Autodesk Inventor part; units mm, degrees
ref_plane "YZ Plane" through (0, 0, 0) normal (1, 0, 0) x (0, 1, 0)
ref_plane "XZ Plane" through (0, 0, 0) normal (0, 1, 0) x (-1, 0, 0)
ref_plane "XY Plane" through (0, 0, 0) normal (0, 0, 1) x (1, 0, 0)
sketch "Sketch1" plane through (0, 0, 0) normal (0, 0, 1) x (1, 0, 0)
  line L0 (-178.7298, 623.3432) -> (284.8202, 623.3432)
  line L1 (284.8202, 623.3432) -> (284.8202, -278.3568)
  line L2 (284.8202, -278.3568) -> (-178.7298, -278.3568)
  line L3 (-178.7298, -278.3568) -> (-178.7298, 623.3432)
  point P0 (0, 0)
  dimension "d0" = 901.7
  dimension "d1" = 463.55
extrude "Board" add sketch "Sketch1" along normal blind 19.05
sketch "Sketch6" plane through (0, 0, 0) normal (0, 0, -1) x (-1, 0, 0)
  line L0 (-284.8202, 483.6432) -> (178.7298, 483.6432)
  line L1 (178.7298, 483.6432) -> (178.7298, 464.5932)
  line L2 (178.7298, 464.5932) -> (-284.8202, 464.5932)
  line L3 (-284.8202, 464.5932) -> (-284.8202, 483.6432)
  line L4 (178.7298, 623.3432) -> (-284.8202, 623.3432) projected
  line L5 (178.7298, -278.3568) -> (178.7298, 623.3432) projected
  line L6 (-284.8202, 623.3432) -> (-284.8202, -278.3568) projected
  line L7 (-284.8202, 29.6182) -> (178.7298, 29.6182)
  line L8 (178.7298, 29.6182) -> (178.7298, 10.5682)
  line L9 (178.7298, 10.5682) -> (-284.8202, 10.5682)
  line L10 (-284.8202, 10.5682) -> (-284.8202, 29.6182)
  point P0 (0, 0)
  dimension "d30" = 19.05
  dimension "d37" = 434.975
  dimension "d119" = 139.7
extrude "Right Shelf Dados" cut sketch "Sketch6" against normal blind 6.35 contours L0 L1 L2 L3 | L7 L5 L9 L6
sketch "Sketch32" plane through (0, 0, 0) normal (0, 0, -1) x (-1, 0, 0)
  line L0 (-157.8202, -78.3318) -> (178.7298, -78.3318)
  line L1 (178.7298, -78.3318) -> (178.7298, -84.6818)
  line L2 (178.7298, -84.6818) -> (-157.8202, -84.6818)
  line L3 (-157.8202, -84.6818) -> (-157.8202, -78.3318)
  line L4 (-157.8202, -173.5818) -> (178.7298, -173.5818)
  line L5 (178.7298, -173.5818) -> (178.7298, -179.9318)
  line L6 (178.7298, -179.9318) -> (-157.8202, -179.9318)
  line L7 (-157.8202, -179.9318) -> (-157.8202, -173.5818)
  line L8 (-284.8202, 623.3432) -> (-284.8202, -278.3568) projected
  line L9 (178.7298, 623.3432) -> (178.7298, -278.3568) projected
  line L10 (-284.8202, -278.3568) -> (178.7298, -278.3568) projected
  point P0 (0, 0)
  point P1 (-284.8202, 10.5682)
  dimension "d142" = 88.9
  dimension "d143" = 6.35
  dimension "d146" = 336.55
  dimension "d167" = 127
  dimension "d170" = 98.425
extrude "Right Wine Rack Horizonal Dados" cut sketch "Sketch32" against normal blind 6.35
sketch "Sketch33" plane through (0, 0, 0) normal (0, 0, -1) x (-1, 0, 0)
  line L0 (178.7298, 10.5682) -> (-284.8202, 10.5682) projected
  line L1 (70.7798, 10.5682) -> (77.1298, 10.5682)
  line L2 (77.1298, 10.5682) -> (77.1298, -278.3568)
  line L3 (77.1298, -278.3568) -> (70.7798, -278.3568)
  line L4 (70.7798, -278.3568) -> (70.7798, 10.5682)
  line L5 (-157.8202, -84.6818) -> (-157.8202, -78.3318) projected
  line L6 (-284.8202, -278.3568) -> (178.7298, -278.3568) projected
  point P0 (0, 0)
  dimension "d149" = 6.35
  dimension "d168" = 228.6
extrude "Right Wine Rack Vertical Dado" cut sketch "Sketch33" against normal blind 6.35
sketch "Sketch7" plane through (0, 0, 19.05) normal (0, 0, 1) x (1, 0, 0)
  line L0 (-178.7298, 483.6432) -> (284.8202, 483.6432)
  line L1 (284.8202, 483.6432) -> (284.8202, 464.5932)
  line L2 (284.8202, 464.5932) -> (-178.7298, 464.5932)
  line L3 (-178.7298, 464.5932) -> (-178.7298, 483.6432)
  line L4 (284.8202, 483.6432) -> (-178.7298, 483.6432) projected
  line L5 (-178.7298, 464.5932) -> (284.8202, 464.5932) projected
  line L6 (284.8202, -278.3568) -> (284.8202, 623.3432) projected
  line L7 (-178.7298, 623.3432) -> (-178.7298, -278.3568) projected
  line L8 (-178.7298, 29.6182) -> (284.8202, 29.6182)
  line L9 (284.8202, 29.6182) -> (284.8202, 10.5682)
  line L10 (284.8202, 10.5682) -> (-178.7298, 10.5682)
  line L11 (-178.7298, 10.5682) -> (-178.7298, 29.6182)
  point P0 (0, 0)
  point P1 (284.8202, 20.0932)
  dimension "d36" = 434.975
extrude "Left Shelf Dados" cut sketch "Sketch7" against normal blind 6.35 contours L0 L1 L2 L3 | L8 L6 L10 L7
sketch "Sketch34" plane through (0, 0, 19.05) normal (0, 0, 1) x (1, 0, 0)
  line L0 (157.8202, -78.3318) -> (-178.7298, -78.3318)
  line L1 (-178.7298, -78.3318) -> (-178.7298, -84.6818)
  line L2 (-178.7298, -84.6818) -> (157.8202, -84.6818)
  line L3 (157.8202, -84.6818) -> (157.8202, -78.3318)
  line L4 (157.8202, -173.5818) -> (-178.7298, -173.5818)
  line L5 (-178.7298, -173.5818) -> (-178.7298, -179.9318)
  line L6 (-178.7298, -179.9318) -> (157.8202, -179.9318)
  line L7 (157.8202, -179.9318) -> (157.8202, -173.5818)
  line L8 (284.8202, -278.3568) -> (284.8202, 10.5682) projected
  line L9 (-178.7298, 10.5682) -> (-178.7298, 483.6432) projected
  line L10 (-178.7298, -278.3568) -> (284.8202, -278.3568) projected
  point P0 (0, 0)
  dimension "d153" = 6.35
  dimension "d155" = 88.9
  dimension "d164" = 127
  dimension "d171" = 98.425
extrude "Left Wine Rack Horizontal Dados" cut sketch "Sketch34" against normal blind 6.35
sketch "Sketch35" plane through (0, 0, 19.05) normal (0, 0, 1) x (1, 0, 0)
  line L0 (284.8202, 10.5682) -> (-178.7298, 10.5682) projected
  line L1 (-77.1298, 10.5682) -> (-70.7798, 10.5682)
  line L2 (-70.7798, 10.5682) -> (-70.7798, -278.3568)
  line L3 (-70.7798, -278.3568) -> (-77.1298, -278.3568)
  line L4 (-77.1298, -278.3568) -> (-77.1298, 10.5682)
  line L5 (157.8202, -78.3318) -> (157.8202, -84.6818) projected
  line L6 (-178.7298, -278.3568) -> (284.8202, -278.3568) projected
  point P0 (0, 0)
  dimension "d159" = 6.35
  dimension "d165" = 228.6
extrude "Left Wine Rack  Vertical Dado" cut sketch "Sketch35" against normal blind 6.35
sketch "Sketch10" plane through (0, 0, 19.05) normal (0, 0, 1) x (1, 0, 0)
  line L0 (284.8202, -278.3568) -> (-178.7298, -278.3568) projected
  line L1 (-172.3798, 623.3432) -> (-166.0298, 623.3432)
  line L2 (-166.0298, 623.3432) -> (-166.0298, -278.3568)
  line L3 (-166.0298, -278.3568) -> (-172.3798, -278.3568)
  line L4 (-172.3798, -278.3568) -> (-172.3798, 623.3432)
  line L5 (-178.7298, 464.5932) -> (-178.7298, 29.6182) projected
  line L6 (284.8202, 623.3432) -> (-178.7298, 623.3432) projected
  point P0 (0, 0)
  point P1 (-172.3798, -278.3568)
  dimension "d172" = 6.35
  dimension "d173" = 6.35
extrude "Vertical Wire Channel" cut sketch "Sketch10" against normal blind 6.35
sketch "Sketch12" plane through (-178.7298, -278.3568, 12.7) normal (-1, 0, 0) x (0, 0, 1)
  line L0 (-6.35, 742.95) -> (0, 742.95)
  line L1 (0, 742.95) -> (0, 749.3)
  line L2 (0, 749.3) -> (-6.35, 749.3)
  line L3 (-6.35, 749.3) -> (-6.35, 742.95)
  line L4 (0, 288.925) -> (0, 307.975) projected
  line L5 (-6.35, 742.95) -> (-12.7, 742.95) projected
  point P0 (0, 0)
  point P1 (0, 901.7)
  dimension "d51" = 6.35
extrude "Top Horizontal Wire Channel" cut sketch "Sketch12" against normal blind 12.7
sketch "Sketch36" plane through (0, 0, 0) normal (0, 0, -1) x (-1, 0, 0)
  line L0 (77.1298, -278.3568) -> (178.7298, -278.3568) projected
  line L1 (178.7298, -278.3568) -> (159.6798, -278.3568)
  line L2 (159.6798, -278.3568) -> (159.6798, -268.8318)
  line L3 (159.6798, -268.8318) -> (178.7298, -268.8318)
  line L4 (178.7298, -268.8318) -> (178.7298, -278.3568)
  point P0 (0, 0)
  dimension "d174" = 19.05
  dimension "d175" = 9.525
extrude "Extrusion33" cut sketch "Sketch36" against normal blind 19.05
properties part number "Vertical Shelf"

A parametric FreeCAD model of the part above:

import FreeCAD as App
import Part
import Sketcher
Q = App.Units.Quantity


def add_polygon(sketch, points):
    """Adds a closed chain of lines whose ends are joined by coincident constraints."""
    first, n = sketch.GeometryCount, len(points)
    for a, b in zip(points, points[1:] + points[:1]):
        sketch.addGeometry(Part.LineSegment(App.Vector(*a, 0), App.Vector(*b, 0)), False)
    for i in range(n):
        sketch.addConstraint(Sketcher.Constraint("Coincident", first + i, 2, first + (i + 1) % n, 1))

doc = App.newDocument("Part")
params = doc.addObject("Spreadsheet::Sheet", "Params")
for row, (alias, value) in enumerate([
    ("sketch1_height", "35.5 in"),
    ("sketch1_width", "18.25 in"),
    ("pad1_length", "0.75 in"),
    ("sketch2_height", "0.75 in"),
    ("sketch2_width", "18.25 in"),
    ("pocket1_length", "0.25 in"),
    ("sketch3_width", "13.25 in"),
    ("sketch3_height", "0.25 in"),
    ("pocket2_length", "0.25 in"),
    ("sketch4_width", "0.25 in"),
    ("sketch4_height", "11.375 in"),
    ("pocket3_length", "0.25 in"),
    ("sketch5_width", "18.25 in"),
    ("sketch5_height", "0.75 in"),
    ("pocket4_length", "0.25 in"),
    ("sketch6_height", "0.25 in"),
    ("sketch6_width", "13.25 in"),
    ("pocket5_length", "0.25 in"),
    ("sketch7_width", "0.25 in"),
    ("sketch7_height", "11.375 in"),
    ("pocket6_length", "0.25 in"),
    ("sketch8_width", "0.25 in"),
    ("sketch8_height", "35.5 in"),
    ("pocket7_length", "0.25 in"),
    ("sketch9_width", "0.25 in"),
    ("pocket8_length", "0.5 in"),
    ("sketch10_width", "0.75 in"),
    ("sketch10_height", "0.375 in"),
    ("pocket9_length", "0.75 in"),
], start=1):
    params.set(f"A{row}", alias)
    params.set(f"B{row}", "=" + value)
    params.setAlias(f"B{row}", alias)

body = doc.addObject("PartDesign::Body", "Body")

# Sketch on XY plane
sketch1 = doc.addObject("Sketcher::SketchObject", "Sketch")
body.addObject(sketch1)
sketch1.AttachmentSupport = (doc.XY_Plane, [""])
sketch1.MapMode = "FlatFace"
add_polygon(sketch1, [(285, 623), (-179, 623), (-179, -278), (285, -278)])  # lines 0-3
sketch1.addConstraint(Sketcher.Constraint("Horizontal", 0))
sketch1.addConstraint(Sketcher.Constraint("Vertical", 1))
sketch1.addConstraint(Sketcher.Constraint("Horizontal", 2))
sketch1.addConstraint(Sketcher.Constraint("Vertical", 3))
sketch1.addConstraint(Sketcher.Constraint("DistanceY", 1, 2, 1, 1, Q("35.5 in")))
sketch1.addConstraint(Sketcher.Constraint("DistanceX", 0, 2, 0, 1, Q("18.25 in")))
sketch1.addConstraint(Sketcher.Constraint("DistanceX", 0, 2, -1, 1, Q("7.0366 in")))
sketch1.addConstraint(Sketcher.Constraint("DistanceY", -1, 1, 0, 2, Q("623.3432 mm")))
sketch1.setExpression("Constraints[8]", "Params.sketch1_height")
sketch1.setExpression("Constraints[9]", "Params.sketch1_width")
pad1 = doc.addObject("PartDesign::Pad", "Pad")
body.addObject(pad1)
pad1.Profile = sketch1
pad1.setExpression("Length", "Params.pad1_length")

# Sketch on XY plane
sketch2 = doc.addObject("Sketcher::SketchObject", "Sketch001")
body.addObject(sketch2)
sketch2.AttachmentSupport = (doc.XY_Plane, [""])
sketch2.MapMode = "FlatFace"
add_polygon(sketch2, [(-179, 484), (285, 484), (285, 465), (-179, 465)])  # lines 0-3
add_polygon(sketch2, [(-179, 30), (285, 30), (285, 11), (-179, 11)])  # lines 4-7
sketch2.addConstraint(Sketcher.Constraint("Horizontal", 0))
sketch2.addConstraint(Sketcher.Constraint("Vertical", 1))
sketch2.addConstraint(Sketcher.Constraint("Horizontal", 2))
sketch2.addConstraint(Sketcher.Constraint("Vertical", 3))
sketch2.addConstraint(Sketcher.Constraint("Horizontal", 4))
sketch2.addConstraint(Sketcher.Constraint("Vertical", 5))
sketch2.addConstraint(Sketcher.Constraint("Horizontal", 6))
sketch2.addConstraint(Sketcher.Constraint("Vertical", 7))
sketch2.addConstraint(Sketcher.Constraint("Vertical", 1, 2, 4, 2))
sketch2.addConstraint(Sketcher.Constraint("Vertical", 3, 2, 6, 2))
sketch2.addConstraint(Sketcher.Constraint("Equal", 3, 5))
sketch2.addConstraint(Sketcher.Constraint("DistanceY", 1, 2, 1, 1, Q("0.75 in")))
sketch2.addConstraint(Sketcher.Constraint("DistanceY", 4, 2, 1, 2, Q("17.125 in")))
sketch2.addConstraint(Sketcher.Constraint("DistanceX", 0, 1, 0, 2, Q("18.25 in")))
sketch2.addConstraint(Sketcher.Constraint("DistanceX", -1, 1, 0, 2, Q("11.2134 in")))
sketch2.addConstraint(Sketcher.Constraint("DistanceY", -1, 1, 0, 2, Q("483.6432 mm")))
sketch2.setExpression("Constraints[19]", "Params.sketch2_height")
sketch2.setExpression("Constraints[21]", "Params.sketch2_width")
pocket1 = doc.addObject("PartDesign::Pocket", "Pocket")
body.addObject(pocket1)
pocket1.Profile = sketch2
pocket1.setExpression("Length", "Params.pocket1_length")
pocket1.Reversed = True

# Sketch on XY plane
sketch3 = doc.addObject("Sketcher::SketchObject", "Sketch002")
body.addObject(sketch3)
sketch3.AttachmentSupport = (doc.XY_Plane, [""])
sketch3.MapMode = "FlatFace"
add_polygon(sketch3, [(-179, -180), (-179, -174), (158, -174), (158, -180)])  # lines 0-3
add_polygon(sketch3, [(-179, -78), (158, -78), (158, -85), (-179, -85)])  # lines 4-7
sketch3.addConstraint(Sketcher.Constraint("Vertical", 0))
sketch3.addConstraint(Sketcher.Constraint("Horizontal", 1))
sketch3.addConstraint(Sketcher.Constraint("Vertical", 2))
sketch3.addConstraint(Sketcher.Constraint("Horizontal", 3))
sketch3.addConstraint(Sketcher.Constraint("Horizontal", 4))
sketch3.addConstraint(Sketcher.Constraint("Vertical", 5))
sketch3.addConstraint(Sketcher.Constraint("Horizontal", 6))
sketch3.addConstraint(Sketcher.Constraint("Vertical", 7))
sketch3.addConstraint(Sketcher.Constraint("Vertical", 2, 2, 4, 2))
sketch3.addConstraint(Sketcher.Constraint("Vertical", 3, 2, 6, 2))
sketch3.addConstraint(Sketcher.Constraint("Equal", 2, 5))
sketch3.addConstraint(Sketcher.Constraint("DistanceX", 1, 1, 1, 2, Q("13.25 in")))
sketch3.addConstraint(Sketcher.Constraint("DistanceY", 0, 1, 0, 2, Q("0.25 in")))
sketch3.addConstraint(Sketcher.Constraint("DistanceY", 1, 2, 5, 2, Q("3.5 in")))
sketch3.addConstraint(Sketcher.Constraint("DistanceX", 0, 2, -1, 1, Q("7.0366 in")))
sketch3.addConstraint(Sketcher.Constraint("DistanceY", 0, 2, -1, 1, Q("173.5818 mm")))
sketch3.setExpression("Constraints[19]", "Params.sketch3_width")
sketch3.setExpression("Constraints[20]", "Params.sketch3_height")
pocket2 = doc.addObject("PartDesign::Pocket", "Pocket001")
body.addObject(pocket2)
pocket2.Profile = sketch3
pocket2.setExpression("Length", "Params.pocket2_length")
pocket2.Reversed = True

# Sketch on XY plane
sketch4 = doc.addObject("Sketcher::SketchObject", "Sketch003")
body.addObject(sketch4)
sketch4.AttachmentSupport = (doc.XY_Plane, [""])
sketch4.MapMode = "FlatFace"
add_polygon(sketch4, [(-77, -278), (-77, 11), (-71, 11), (-71, -278)])  # lines 0-3
sketch4.addConstraint(Sketcher.Constraint("Vertical", 0))
sketch4.addConstraint(Sketcher.Constraint("Horizontal", 1))
sketch4.addConstraint(Sketcher.Constraint("Vertical", 2))
sketch4.addConstraint(Sketcher.Constraint("Horizontal", 3))
sketch4.addConstraint(Sketcher.Constraint("DistanceX", 1, 1, 1, 2, Q("0.25 in")))
sketch4.addConstraint(Sketcher.Constraint("DistanceY", 0, 1, 0, 2, Q("11.375 in")))
sketch4.addConstraint(Sketcher.Constraint("DistanceX", 0, 2, -1, 1, Q("3.0366 in")))
sketch4.addConstraint(Sketcher.Constraint("DistanceY", -1, 1, 0, 2, Q("10.5682 mm")))
sketch4.setExpression("Constraints[8]", "Params.sketch4_width")
sketch4.setExpression("Constraints[9]", "Params.sketch4_height")
pocket3 = doc.addObject("PartDesign::Pocket", "Pocket002")
body.addObject(pocket3)
pocket3.Profile = sketch4
pocket3.setExpression("Length", "Params.pocket3_length")
pocket3.Reversed = True

# Sketch on XY plane
sketch5 = doc.addObject("Sketcher::SketchObject", "Sketch004")
body.addObject(sketch5)
sketch5.AttachmentSupport = (doc.XY_Plane, [""])
sketch5.MapMode = "FlatFace"
sketch5.AttachmentOffset = App.Placement(App.Vector(0, 0, 0.75 * 25.4), App.Rotation())
add_polygon(sketch5, [(285, 484), (-179, 484), (-179, 465), (285, 465)])  # lines 0-3
add_polygon(sketch5, [(285, 30), (-179, 30), (-179, 11), (285, 11)])  # lines 4-7
sketch5.addConstraint(Sketcher.Constraint("Horizontal", 0))
sketch5.addConstraint(Sketcher.Constraint("Vertical", 1))
sketch5.addConstraint(Sketcher.Constraint("Horizontal", 2))
sketch5.addConstraint(Sketcher.Constraint("Vertical", 3))
sketch5.addConstraint(Sketcher.Constraint("Horizontal", 4))
sketch5.addConstraint(Sketcher.Constraint("Vertical", 5))
sketch5.addConstraint(Sketcher.Constraint("Horizontal", 6))
sketch5.addConstraint(Sketcher.Constraint("Vertical", 7))
sketch5.addConstraint(Sketcher.Constraint("Vertical", 1, 2, 4, 2))
sketch5.addConstraint(Sketcher.Constraint("Vertical", 3, 2, 6, 2))
sketch5.addConstraint(Sketcher.Constraint("Equal", 3, 5))
sketch5.addConstraint(Sketcher.Constraint("DistanceY", 4, 2, 1, 2, Q("17.125 in")))
sketch5.addConstraint(Sketcher.Constraint("DistanceX", 0, 2, 0, 1, Q("18.25 in")))
sketch5.addConstraint(Sketcher.Constraint("DistanceY", 1, 2, 1, 1, Q("0.75 in")))
sketch5.addConstraint(Sketcher.Constraint("DistanceX", 0, 2, -1, 1, Q("7.0366 in")))
sketch5.addConstraint(Sketcher.Constraint("DistanceY", -1, 1, 0, 2, Q("483.6432 mm")))
sketch5.setExpression("Constraints[20]", "Params.sketch5_width")
sketch5.setExpression("Constraints[21]", "Params.sketch5_height")
pocket4 = doc.addObject("PartDesign::Pocket", "Pocket003")
body.addObject(pocket4)
pocket4.Profile = sketch5
pocket4.setExpression("Length", "Params.pocket4_length")

# Sketch on XY plane
sketch6 = doc.addObject("Sketcher::SketchObject", "Sketch005")
body.addObject(sketch6)
sketch6.AttachmentSupport = (doc.XY_Plane, [""])
sketch6.MapMode = "FlatFace"
sketch6.AttachmentOffset = App.Placement(App.Vector(0, 0, 0.75 * 25.4), App.Rotation())
add_polygon(sketch6, [(158, -85), (158, -78), (-179, -78), (-179, -85)])  # lines 0-3
add_polygon(sketch6, [(158, -180), (158, -174), (-179, -174), (-179, -180)])  # lines 4-7
sketch6.addConstraint(Sketcher.Constraint("Vertical", 0))
sketch6.addConstraint(Sketcher.Constraint("Horizontal", 1))
sketch6.addConstraint(Sketcher.Constraint("Vertical", 2))
sketch6.addConstraint(Sketcher.Constraint("Horizontal", 3))
sketch6.addConstraint(Sketcher.Constraint("Vertical", 4))
sketch6.addConstraint(Sketcher.Constraint("Horizontal", 5))
sketch6.addConstraint(Sketcher.Constraint("Vertical", 6))
sketch6.addConstraint(Sketcher.Constraint("Horizontal", 7))
sketch6.addConstraint(Sketcher.Constraint("Vertical", 3, 2, 4, 2))
sketch6.addConstraint(Sketcher.Constraint("Vertical", 2, 2, 5, 2))
sketch6.addConstraint(Sketcher.Constraint("Equal", 2, 4))
sketch6.addConstraint(Sketcher.Constraint("DistanceY", 0, 1, 0, 2, Q("0.25 in")))
sketch6.addConstraint(Sketcher.Constraint("DistanceY", 4, 2, 3, 2, Q("3.5 in")))
sketch6.addConstraint(Sketcher.Constraint("DistanceX", 1, 2, 1, 1, Q("13.25 in")))
sketch6.addConstraint(Sketcher.Constraint("DistanceX", -1, 1, 0, 2, Q("6.2134 in")))
sketch6.addConstraint(Sketcher.Constraint("DistanceY", 0, 2, -1, 1, Q("78.3318 mm")))
sketch6.setExpression("Constraints[19]", "Params.sketch6_height")
sketch6.setExpression("Constraints[21]", "Params.sketch6_width")
pocket5 = doc.addObject("PartDesign::Pocket", "Pocket004")
body.addObject(pocket5)
pocket5.Profile = sketch6
pocket5.setExpression("Length", "Params.pocket5_length")

# Sketch on XY plane
sketch7 = doc.addObject("Sketcher::SketchObject", "Sketch006")
body.addObject(sketch7)
sketch7.AttachmentSupport = (doc.XY_Plane, [""])
sketch7.MapMode = "FlatFace"
sketch7.AttachmentOffset = App.Placement(App.Vector(0, 0, 0.75 * 25.4), App.Rotation())
add_polygon(sketch7, [(-71, -278), (-71, 11), (-77, 11), (-77, -278)])  # lines 0-3
sketch7.addConstraint(Sketcher.Constraint("Vertical", 0))
sketch7.addConstraint(Sketcher.Constraint("Horizontal", 1))
sketch7.addConstraint(Sketcher.Constraint("Vertical", 2))
sketch7.addConstraint(Sketcher.Constraint("Horizontal", 3))
sketch7.addConstraint(Sketcher.Constraint("DistanceX", 1, 2, 1, 1, Q("0.25 in")))
sketch7.addConstraint(Sketcher.Constraint("DistanceY", 0, 1, 0, 2, Q("11.375 in")))
sketch7.addConstraint(Sketcher.Constraint("DistanceX", 0, 2, -1, 1, Q("2.7866 in")))
sketch7.addConstraint(Sketcher.Constraint("DistanceY", -1, 1, 0, 2, Q("10.5682 mm")))
sketch7.setExpression("Constraints[8]", "Params.sketch7_width")
sketch7.setExpression("Constraints[9]", "Params.sketch7_height")
pocket6 = doc.addObject("PartDesign::Pocket", "Pocket005")
body.addObject(pocket6)
pocket6.Profile = sketch7
pocket6.setExpression("Length", "Params.pocket6_length")

# Sketch on XY plane
sketch8 = doc.addObject("Sketcher::SketchObject", "Sketch007")
body.addObject(sketch8)
sketch8.AttachmentSupport = (doc.XY_Plane, [""])
sketch8.MapMode = "FlatFace"
sketch8.AttachmentOffset = App.Placement(App.Vector(0, 0, 0.75 * 25.4), App.Rotation())
add_polygon(sketch8, [(-172, -278), (-166, -278), (-166, 623), (-172, 623)])  # lines 0-3
sketch8.addConstraint(Sketcher.Constraint("Horizontal", 0))
sketch8.addConstraint(Sketcher.Constraint("Vertical", 1))
sketch8.addConstraint(Sketcher.Constraint("Horizontal", 2))
sketch8.addConstraint(Sketcher.Constraint("Vertical", 3))
sketch8.addConstraint(Sketcher.Constraint("DistanceX", 0, 1, 0, 2, Q("0.25 in")))
sketch8.addConstraint(Sketcher.Constraint("DistanceY", 1, 1, 1, 2, Q("35.5 in")))
sketch8.addConstraint(Sketcher.Constraint("DistanceX", 0, 2, -1, 1, Q("6.5366 in")))
sketch8.addConstraint(Sketcher.Constraint("DistanceY", 0, 2, -1, 1, Q("278.3568 mm")))
sketch8.setExpression("Constraints[8]", "Params.sketch8_width")
sketch8.setExpression("Constraints[9]", "Params.sketch8_height")
pocket7 = doc.addObject("PartDesign::Pocket", "Pocket006")
body.addObject(pocket7)
pocket7.Profile = sketch8
pocket7.setExpression("Length", "Params.pocket7_length")

# Sketch on YZ plane
sketch9 = doc.addObject("Sketcher::SketchObject", "Sketch008")
body.addObject(sketch9)
sketch9.AttachmentSupport = (doc.YZ_Plane, [""])
sketch9.MapMode = "FlatFace"
sketch9.AttachmentOffset = App.Placement(App.Vector(0, 0, -7.0366063 * 25.4), App.Rotation())
add_polygon(sketch9, [(471, 6), (465, 6), (465, 13), (471, 13)])  # lines 0-3
sketch9.addConstraint(Sketcher.Constraint("Horizontal", 0))
sketch9.addConstraint(Sketcher.Constraint("Vertical", 1))
sketch9.addConstraint(Sketcher.Constraint("Horizontal", 2))
sketch9.addConstraint(Sketcher.Constraint("Vertical", 3))
sketch9.addConstraint(Sketcher.Constraint("Equal", 2, 1))
sketch9.addConstraint(Sketcher.Constraint("DistanceX", 0, 2, 0, 1, Q("0.25 in")))
sketch9.addConstraint(Sketcher.Constraint("DistanceY", -1, 1, 0, 2, Q("0.25 in")))
sketch9.addConstraint(Sketcher.Constraint("DistanceX", -1, 1, 0, 2, Q("464.5932 mm")))
sketch9.setExpression("Constraints[9]", "Params.sketch9_width")
pocket8 = doc.addObject("PartDesign::Pocket", "Pocket007")
body.addObject(pocket8)
pocket8.Profile = sketch9
pocket8.setExpression("Length", "Params.pocket8_length")
pocket8.Reversed = True

# Sketch on XY plane
sketch10 = doc.addObject("Sketcher::SketchObject", "Sketch009")
body.addObject(sketch10)
sketch10.AttachmentSupport = (doc.XY_Plane, [""])
sketch10.MapMode = "FlatFace"
add_polygon(sketch10, [(-160, -269), (-160, -278), (-179, -278), (-179, -269)])  # lines 0-3
sketch10.addConstraint(Sketcher.Constraint("Vertical", 0))
sketch10.addConstraint(Sketcher.Constraint("Horizontal", 1))
sketch10.addConstraint(Sketcher.Constraint("Vertical", 2))
sketch10.addConstraint(Sketcher.Constraint("Horizontal", 3))
sketch10.addConstraint(Sketcher.Constraint("DistanceX", 1, 2, 1, 1, Q("0.75 in")))
sketch10.addConstraint(Sketcher.Constraint("DistanceY", 0, 2, 0, 1, Q("0.375 in")))
sketch10.addConstraint(Sketcher.Constraint("DistanceX", 0, 2, -1, 1, Q("6.2866 in")))
sketch10.addConstraint(Sketcher.Constraint("DistanceY", 0, 2, -1, 1, Q("278.3568 mm")))
sketch10.setExpression("Constraints[8]", "Params.sketch10_width")
sketch10.setExpression("Constraints[9]", "Params.sketch10_height")
pocket9 = doc.addObject("PartDesign::Pocket", "Pocket008")
body.addObject(pocket9)
pocket9.Profile = sketch10
pocket9.setExpression("Length", "Params.pocket9_length")
pocket9.Reversed = True

doc.recompute()
